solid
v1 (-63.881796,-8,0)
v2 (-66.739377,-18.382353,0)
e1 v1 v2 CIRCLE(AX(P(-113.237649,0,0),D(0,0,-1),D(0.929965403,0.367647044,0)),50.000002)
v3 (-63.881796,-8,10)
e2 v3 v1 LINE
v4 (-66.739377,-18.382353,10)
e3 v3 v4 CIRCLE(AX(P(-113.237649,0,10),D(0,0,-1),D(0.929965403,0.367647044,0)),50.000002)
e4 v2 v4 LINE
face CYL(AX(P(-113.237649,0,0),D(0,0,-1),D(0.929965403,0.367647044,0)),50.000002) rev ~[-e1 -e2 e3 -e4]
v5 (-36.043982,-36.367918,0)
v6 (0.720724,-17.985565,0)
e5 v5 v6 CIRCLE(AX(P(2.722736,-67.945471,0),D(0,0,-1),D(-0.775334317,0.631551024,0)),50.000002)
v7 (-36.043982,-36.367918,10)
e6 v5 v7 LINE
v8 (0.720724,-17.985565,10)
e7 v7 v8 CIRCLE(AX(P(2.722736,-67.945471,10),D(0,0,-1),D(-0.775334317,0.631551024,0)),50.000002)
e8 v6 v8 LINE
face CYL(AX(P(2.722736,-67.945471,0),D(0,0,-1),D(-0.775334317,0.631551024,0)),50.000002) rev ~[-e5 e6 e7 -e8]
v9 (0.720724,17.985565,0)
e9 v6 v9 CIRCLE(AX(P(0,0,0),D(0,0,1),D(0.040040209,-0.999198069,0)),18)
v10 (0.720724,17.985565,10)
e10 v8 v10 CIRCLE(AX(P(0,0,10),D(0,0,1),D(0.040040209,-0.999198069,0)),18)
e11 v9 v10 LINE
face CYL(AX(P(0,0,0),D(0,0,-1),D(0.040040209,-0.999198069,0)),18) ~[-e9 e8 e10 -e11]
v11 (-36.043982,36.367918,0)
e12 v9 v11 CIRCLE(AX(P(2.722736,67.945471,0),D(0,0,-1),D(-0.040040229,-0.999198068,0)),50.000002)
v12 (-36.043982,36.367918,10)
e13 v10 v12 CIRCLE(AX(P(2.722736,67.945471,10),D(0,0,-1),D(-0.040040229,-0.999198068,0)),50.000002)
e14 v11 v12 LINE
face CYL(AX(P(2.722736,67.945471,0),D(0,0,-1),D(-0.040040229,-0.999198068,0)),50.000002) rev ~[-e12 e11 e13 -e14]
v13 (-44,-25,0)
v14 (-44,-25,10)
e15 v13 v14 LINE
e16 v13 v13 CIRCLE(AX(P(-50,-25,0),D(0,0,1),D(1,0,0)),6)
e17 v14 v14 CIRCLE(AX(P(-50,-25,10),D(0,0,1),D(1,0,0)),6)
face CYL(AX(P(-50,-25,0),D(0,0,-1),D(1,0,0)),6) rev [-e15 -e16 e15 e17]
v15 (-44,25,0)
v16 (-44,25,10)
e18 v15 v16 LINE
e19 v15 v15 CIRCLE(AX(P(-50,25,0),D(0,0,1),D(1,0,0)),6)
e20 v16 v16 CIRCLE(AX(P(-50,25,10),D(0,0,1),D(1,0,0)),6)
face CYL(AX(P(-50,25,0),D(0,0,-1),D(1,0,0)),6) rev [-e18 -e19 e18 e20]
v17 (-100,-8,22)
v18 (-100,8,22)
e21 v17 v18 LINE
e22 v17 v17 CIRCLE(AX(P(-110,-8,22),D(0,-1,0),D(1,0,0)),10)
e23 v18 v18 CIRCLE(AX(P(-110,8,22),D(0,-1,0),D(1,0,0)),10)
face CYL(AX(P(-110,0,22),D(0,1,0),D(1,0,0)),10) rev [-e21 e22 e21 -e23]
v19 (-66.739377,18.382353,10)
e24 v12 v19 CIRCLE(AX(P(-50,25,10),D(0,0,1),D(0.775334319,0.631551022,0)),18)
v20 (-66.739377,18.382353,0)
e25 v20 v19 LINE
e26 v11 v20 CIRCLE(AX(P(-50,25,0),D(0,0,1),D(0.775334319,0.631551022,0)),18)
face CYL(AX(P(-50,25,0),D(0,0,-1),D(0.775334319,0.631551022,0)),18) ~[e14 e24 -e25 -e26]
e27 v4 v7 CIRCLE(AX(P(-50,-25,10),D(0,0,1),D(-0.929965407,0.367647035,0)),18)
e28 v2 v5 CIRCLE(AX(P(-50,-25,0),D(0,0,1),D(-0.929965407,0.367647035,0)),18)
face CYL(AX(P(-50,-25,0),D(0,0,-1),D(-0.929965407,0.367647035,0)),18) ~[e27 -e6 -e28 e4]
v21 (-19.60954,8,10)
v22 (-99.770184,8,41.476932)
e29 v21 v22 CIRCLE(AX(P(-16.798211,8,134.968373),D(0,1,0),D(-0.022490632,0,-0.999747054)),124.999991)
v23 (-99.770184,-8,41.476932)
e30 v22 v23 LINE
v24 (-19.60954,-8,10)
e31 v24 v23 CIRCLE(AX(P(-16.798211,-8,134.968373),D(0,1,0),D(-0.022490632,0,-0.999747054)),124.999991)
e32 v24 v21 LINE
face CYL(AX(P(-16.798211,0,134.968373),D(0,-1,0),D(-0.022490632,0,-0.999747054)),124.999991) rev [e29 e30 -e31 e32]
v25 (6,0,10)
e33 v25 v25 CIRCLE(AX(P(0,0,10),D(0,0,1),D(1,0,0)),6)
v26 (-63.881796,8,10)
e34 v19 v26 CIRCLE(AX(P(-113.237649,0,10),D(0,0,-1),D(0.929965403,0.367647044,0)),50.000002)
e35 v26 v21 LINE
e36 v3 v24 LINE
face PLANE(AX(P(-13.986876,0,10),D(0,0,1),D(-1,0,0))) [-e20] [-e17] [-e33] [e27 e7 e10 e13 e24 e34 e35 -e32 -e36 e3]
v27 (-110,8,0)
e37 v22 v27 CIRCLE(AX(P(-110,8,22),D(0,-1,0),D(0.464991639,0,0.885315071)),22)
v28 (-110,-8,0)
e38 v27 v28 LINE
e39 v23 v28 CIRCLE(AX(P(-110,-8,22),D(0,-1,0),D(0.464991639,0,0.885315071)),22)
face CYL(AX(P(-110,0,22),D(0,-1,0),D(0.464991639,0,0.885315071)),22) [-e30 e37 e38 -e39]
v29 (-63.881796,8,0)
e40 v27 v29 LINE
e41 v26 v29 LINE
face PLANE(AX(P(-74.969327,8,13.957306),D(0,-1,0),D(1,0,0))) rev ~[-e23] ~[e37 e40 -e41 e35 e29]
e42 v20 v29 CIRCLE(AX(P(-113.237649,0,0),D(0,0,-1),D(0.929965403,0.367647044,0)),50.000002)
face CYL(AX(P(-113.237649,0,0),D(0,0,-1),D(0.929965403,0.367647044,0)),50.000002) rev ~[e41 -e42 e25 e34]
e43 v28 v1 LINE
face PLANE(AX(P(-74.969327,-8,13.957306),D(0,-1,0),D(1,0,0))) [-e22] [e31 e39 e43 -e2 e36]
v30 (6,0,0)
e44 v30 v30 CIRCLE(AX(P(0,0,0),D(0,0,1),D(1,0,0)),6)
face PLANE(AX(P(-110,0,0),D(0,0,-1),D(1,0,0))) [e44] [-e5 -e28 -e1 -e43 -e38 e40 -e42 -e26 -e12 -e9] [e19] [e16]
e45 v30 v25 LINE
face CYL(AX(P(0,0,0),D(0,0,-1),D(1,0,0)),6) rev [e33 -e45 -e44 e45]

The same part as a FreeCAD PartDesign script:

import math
import FreeCAD as App
import Part
import Sketcher
from FreeCAD import Vector
Q = App.Units.Quantity

doc = App.newDocument("Part")
body = doc.addObject("PartDesign::Body", "Body")

# Sketch on XY plane
sketch1 = doc.addObject("Sketcher::SketchObject", "Sketch")
body.addObject(sketch1)
sketch1.AttachmentSupport = (doc.XY_Plane, [""])
sketch1.MapMode = "FlatFace"
sketch1.addGeometry([
    Part.ArcOfCircle(Part.Circle(Vector(3, -68, 0), Vector(0, 0, 1), 50), math.radians(92), math.radians(141)),  # 0
    Part.ArcOfCircle(Part.Circle(Vector(0, 0, 0), Vector(0, 0, 1), 18), math.radians(-88), math.radians(88)),  # 1
    Part.ArcOfCircle(Part.Circle(Vector(3, 68, 0), Vector(0, 0, 1), 50), math.radians(-141), math.radians(-92)),  # 2
    Part.ArcOfCircle(Part.Circle(Vector(-50, 25, 0), Vector(0, 0, 1), 18), math.radians(39), math.radians(202)),  # 3
    Part.ArcOfCircle(Part.Circle(Vector(-113, 0, 0), Vector(0, 0, 1), 50), math.radians(-22), math.radians(22)),  # 4
    Part.ArcOfCircle(Part.Circle(Vector(-50, -25, 0), Vector(0, 0, 1), 18), math.radians(158), math.radians(321)),  # 5
    Part.Circle(Vector(-50, -25, 0), Vector(0, 0, 1), 6),  # 6
    Part.Circle(Vector(-50, 25, 0), Vector(0, 0, 1), 6),  # 7
    Part.Circle(Vector(0, 0, 0), Vector(0, 0, 1), 6),  # 8
], False)
sketch1.addConstraint([
    Sketcher.Constraint("Tangent", 0, 1, 1, 1),
    Sketcher.Constraint("Tangent", 1, 2, 2, 2),
    Sketcher.Constraint("Tangent", 2, 1, 3, 1),
    Sketcher.Constraint("Tangent", 3, 2, 4, 2),
    Sketcher.Constraint("Tangent", 4, 1, 5, 1),
    Sketcher.Constraint("Tangent", 5, 2, 0, 2),
    Sketcher.Constraint("Coincident", 1, 3, -1, 1),
    Sketcher.Constraint("Coincident", 8, 3, -1, 1),
    Sketcher.Constraint("Coincident", 6, 3, 5, 3),
    Sketcher.Constraint("Coincident", 7, 3, 3, 3),
    Sketcher.Constraint("Equal", 0, 2),
    Sketcher.Constraint("Equal", 1, 3),
    Sketcher.Constraint("Equal", 2, 4),
    Sketcher.Constraint("Equal", 3, 5),
    Sketcher.Constraint("Equal", 6, 7),
    Sketcher.Constraint("Equal", 7, 8),
    Sketcher.Constraint("Symmetric", 3, 3, 5, 3, -1),
    Sketcher.Constraint("Diameter", 6, Q("12 mm")),
    Sketcher.Constraint("Radius", 1, Q("18 mm")),
    Sketcher.Constraint("DistanceX", 3, 3, -1, 1, Q("50 mm")),
    Sketcher.Constraint("DistanceY", -1, 1, 3, 3, Q("25 mm")),
    Sketcher.Constraint("Radius", 0, Q("50.000002 mm")),
])
pad1 = doc.addObject("PartDesign::Pad", "Pad")
body.addObject(pad1)
pad1.Profile = sketch1
pad1.Length = 10

# Sketch on XZ plane
sketch2 = doc.addObject("Sketcher::SketchObject", "Sketch001")
body.addObject(sketch2)
sketch2.AttachmentSupport = (doc.XZ_Plane, [""])
sketch2.MapMode = "FlatFace"
sketch2.addGeometry([
    Part.ArcOfCircle(Part.Circle(Vector(-17, 135, 0), Vector(0, 0, 1), 125), math.radians(-132), math.radians(-91)),  # 0
    Part.ArcOfCircle(Part.Circle(Vector(-110, 22, 0), Vector(0, 0, 1), 22), math.radians(62), math.radians(270)),  # 1
    Part.LineSegment(Vector(-110, 0, 0), Vector(-14, 0, 0)),  # 2
    Part.LineSegment(Vector(-14, 0, 0), Vector(-14, 10, 0)),  # 3
    Part.LineSegment(Vector(-14, 10, 0), Vector(-20, 10, 0)),  # 4
    Part.Circle(Vector(-110, 22, 0), Vector(0, 0, 1), 10),  # 5
], False)
sketch2.addConstraint([
    Sketcher.Constraint("Coincident", 0, 1, 1, 1),
    Sketcher.Constraint("Tangent", 1, 2, 2, 1),
    Sketcher.Constraint("Coincident", 2, 2, 3, 1),
    Sketcher.Constraint("Coincident", 3, 2, 4, 1),
    Sketcher.Constraint("Coincident", 4, 2, 0, 2),
    Sketcher.Constraint("Horizontal", 2),
    Sketcher.Constraint("Vertical", 3),
    Sketcher.Constraint("Horizontal", 4),
    Sketcher.Constraint("Coincident", 5, 3, 1, 3),
    Sketcher.Constraint("PointOnObject", 1, 2, -1),
    Sketcher.Constraint("Diameter", 5, Q("20 mm")),
    Sketcher.Constraint("Radius", 1, Q("22 mm")),
    Sketcher.Constraint("DistanceY", 3, 1, 3, 2, Q("10 mm")),
    Sketcher.Constraint("DistanceX", 1, 3, -1, 1, Q("110 mm")),
    Sketcher.Constraint("Radius", 0, Q("124.999991 mm")),
    Sketcher.Constraint("DistanceX", 2, 1, 2, 2, Q("96.013124 mm")),
    Sketcher.Constraint("DistanceX", 4, 2, 4, 1, Q("5.622664 mm")),
    Sketcher.Constraint("DistanceX", 0, 3, -1, 1, Q("16.798211 mm")),
])
pad2 = doc.addObject("PartDesign::Pad", "Pad001")
body.addObject(pad2)
pad2.Profile = sketch2
pad2.Length = 16
pad2.Midplane = True

doc.recompute()
